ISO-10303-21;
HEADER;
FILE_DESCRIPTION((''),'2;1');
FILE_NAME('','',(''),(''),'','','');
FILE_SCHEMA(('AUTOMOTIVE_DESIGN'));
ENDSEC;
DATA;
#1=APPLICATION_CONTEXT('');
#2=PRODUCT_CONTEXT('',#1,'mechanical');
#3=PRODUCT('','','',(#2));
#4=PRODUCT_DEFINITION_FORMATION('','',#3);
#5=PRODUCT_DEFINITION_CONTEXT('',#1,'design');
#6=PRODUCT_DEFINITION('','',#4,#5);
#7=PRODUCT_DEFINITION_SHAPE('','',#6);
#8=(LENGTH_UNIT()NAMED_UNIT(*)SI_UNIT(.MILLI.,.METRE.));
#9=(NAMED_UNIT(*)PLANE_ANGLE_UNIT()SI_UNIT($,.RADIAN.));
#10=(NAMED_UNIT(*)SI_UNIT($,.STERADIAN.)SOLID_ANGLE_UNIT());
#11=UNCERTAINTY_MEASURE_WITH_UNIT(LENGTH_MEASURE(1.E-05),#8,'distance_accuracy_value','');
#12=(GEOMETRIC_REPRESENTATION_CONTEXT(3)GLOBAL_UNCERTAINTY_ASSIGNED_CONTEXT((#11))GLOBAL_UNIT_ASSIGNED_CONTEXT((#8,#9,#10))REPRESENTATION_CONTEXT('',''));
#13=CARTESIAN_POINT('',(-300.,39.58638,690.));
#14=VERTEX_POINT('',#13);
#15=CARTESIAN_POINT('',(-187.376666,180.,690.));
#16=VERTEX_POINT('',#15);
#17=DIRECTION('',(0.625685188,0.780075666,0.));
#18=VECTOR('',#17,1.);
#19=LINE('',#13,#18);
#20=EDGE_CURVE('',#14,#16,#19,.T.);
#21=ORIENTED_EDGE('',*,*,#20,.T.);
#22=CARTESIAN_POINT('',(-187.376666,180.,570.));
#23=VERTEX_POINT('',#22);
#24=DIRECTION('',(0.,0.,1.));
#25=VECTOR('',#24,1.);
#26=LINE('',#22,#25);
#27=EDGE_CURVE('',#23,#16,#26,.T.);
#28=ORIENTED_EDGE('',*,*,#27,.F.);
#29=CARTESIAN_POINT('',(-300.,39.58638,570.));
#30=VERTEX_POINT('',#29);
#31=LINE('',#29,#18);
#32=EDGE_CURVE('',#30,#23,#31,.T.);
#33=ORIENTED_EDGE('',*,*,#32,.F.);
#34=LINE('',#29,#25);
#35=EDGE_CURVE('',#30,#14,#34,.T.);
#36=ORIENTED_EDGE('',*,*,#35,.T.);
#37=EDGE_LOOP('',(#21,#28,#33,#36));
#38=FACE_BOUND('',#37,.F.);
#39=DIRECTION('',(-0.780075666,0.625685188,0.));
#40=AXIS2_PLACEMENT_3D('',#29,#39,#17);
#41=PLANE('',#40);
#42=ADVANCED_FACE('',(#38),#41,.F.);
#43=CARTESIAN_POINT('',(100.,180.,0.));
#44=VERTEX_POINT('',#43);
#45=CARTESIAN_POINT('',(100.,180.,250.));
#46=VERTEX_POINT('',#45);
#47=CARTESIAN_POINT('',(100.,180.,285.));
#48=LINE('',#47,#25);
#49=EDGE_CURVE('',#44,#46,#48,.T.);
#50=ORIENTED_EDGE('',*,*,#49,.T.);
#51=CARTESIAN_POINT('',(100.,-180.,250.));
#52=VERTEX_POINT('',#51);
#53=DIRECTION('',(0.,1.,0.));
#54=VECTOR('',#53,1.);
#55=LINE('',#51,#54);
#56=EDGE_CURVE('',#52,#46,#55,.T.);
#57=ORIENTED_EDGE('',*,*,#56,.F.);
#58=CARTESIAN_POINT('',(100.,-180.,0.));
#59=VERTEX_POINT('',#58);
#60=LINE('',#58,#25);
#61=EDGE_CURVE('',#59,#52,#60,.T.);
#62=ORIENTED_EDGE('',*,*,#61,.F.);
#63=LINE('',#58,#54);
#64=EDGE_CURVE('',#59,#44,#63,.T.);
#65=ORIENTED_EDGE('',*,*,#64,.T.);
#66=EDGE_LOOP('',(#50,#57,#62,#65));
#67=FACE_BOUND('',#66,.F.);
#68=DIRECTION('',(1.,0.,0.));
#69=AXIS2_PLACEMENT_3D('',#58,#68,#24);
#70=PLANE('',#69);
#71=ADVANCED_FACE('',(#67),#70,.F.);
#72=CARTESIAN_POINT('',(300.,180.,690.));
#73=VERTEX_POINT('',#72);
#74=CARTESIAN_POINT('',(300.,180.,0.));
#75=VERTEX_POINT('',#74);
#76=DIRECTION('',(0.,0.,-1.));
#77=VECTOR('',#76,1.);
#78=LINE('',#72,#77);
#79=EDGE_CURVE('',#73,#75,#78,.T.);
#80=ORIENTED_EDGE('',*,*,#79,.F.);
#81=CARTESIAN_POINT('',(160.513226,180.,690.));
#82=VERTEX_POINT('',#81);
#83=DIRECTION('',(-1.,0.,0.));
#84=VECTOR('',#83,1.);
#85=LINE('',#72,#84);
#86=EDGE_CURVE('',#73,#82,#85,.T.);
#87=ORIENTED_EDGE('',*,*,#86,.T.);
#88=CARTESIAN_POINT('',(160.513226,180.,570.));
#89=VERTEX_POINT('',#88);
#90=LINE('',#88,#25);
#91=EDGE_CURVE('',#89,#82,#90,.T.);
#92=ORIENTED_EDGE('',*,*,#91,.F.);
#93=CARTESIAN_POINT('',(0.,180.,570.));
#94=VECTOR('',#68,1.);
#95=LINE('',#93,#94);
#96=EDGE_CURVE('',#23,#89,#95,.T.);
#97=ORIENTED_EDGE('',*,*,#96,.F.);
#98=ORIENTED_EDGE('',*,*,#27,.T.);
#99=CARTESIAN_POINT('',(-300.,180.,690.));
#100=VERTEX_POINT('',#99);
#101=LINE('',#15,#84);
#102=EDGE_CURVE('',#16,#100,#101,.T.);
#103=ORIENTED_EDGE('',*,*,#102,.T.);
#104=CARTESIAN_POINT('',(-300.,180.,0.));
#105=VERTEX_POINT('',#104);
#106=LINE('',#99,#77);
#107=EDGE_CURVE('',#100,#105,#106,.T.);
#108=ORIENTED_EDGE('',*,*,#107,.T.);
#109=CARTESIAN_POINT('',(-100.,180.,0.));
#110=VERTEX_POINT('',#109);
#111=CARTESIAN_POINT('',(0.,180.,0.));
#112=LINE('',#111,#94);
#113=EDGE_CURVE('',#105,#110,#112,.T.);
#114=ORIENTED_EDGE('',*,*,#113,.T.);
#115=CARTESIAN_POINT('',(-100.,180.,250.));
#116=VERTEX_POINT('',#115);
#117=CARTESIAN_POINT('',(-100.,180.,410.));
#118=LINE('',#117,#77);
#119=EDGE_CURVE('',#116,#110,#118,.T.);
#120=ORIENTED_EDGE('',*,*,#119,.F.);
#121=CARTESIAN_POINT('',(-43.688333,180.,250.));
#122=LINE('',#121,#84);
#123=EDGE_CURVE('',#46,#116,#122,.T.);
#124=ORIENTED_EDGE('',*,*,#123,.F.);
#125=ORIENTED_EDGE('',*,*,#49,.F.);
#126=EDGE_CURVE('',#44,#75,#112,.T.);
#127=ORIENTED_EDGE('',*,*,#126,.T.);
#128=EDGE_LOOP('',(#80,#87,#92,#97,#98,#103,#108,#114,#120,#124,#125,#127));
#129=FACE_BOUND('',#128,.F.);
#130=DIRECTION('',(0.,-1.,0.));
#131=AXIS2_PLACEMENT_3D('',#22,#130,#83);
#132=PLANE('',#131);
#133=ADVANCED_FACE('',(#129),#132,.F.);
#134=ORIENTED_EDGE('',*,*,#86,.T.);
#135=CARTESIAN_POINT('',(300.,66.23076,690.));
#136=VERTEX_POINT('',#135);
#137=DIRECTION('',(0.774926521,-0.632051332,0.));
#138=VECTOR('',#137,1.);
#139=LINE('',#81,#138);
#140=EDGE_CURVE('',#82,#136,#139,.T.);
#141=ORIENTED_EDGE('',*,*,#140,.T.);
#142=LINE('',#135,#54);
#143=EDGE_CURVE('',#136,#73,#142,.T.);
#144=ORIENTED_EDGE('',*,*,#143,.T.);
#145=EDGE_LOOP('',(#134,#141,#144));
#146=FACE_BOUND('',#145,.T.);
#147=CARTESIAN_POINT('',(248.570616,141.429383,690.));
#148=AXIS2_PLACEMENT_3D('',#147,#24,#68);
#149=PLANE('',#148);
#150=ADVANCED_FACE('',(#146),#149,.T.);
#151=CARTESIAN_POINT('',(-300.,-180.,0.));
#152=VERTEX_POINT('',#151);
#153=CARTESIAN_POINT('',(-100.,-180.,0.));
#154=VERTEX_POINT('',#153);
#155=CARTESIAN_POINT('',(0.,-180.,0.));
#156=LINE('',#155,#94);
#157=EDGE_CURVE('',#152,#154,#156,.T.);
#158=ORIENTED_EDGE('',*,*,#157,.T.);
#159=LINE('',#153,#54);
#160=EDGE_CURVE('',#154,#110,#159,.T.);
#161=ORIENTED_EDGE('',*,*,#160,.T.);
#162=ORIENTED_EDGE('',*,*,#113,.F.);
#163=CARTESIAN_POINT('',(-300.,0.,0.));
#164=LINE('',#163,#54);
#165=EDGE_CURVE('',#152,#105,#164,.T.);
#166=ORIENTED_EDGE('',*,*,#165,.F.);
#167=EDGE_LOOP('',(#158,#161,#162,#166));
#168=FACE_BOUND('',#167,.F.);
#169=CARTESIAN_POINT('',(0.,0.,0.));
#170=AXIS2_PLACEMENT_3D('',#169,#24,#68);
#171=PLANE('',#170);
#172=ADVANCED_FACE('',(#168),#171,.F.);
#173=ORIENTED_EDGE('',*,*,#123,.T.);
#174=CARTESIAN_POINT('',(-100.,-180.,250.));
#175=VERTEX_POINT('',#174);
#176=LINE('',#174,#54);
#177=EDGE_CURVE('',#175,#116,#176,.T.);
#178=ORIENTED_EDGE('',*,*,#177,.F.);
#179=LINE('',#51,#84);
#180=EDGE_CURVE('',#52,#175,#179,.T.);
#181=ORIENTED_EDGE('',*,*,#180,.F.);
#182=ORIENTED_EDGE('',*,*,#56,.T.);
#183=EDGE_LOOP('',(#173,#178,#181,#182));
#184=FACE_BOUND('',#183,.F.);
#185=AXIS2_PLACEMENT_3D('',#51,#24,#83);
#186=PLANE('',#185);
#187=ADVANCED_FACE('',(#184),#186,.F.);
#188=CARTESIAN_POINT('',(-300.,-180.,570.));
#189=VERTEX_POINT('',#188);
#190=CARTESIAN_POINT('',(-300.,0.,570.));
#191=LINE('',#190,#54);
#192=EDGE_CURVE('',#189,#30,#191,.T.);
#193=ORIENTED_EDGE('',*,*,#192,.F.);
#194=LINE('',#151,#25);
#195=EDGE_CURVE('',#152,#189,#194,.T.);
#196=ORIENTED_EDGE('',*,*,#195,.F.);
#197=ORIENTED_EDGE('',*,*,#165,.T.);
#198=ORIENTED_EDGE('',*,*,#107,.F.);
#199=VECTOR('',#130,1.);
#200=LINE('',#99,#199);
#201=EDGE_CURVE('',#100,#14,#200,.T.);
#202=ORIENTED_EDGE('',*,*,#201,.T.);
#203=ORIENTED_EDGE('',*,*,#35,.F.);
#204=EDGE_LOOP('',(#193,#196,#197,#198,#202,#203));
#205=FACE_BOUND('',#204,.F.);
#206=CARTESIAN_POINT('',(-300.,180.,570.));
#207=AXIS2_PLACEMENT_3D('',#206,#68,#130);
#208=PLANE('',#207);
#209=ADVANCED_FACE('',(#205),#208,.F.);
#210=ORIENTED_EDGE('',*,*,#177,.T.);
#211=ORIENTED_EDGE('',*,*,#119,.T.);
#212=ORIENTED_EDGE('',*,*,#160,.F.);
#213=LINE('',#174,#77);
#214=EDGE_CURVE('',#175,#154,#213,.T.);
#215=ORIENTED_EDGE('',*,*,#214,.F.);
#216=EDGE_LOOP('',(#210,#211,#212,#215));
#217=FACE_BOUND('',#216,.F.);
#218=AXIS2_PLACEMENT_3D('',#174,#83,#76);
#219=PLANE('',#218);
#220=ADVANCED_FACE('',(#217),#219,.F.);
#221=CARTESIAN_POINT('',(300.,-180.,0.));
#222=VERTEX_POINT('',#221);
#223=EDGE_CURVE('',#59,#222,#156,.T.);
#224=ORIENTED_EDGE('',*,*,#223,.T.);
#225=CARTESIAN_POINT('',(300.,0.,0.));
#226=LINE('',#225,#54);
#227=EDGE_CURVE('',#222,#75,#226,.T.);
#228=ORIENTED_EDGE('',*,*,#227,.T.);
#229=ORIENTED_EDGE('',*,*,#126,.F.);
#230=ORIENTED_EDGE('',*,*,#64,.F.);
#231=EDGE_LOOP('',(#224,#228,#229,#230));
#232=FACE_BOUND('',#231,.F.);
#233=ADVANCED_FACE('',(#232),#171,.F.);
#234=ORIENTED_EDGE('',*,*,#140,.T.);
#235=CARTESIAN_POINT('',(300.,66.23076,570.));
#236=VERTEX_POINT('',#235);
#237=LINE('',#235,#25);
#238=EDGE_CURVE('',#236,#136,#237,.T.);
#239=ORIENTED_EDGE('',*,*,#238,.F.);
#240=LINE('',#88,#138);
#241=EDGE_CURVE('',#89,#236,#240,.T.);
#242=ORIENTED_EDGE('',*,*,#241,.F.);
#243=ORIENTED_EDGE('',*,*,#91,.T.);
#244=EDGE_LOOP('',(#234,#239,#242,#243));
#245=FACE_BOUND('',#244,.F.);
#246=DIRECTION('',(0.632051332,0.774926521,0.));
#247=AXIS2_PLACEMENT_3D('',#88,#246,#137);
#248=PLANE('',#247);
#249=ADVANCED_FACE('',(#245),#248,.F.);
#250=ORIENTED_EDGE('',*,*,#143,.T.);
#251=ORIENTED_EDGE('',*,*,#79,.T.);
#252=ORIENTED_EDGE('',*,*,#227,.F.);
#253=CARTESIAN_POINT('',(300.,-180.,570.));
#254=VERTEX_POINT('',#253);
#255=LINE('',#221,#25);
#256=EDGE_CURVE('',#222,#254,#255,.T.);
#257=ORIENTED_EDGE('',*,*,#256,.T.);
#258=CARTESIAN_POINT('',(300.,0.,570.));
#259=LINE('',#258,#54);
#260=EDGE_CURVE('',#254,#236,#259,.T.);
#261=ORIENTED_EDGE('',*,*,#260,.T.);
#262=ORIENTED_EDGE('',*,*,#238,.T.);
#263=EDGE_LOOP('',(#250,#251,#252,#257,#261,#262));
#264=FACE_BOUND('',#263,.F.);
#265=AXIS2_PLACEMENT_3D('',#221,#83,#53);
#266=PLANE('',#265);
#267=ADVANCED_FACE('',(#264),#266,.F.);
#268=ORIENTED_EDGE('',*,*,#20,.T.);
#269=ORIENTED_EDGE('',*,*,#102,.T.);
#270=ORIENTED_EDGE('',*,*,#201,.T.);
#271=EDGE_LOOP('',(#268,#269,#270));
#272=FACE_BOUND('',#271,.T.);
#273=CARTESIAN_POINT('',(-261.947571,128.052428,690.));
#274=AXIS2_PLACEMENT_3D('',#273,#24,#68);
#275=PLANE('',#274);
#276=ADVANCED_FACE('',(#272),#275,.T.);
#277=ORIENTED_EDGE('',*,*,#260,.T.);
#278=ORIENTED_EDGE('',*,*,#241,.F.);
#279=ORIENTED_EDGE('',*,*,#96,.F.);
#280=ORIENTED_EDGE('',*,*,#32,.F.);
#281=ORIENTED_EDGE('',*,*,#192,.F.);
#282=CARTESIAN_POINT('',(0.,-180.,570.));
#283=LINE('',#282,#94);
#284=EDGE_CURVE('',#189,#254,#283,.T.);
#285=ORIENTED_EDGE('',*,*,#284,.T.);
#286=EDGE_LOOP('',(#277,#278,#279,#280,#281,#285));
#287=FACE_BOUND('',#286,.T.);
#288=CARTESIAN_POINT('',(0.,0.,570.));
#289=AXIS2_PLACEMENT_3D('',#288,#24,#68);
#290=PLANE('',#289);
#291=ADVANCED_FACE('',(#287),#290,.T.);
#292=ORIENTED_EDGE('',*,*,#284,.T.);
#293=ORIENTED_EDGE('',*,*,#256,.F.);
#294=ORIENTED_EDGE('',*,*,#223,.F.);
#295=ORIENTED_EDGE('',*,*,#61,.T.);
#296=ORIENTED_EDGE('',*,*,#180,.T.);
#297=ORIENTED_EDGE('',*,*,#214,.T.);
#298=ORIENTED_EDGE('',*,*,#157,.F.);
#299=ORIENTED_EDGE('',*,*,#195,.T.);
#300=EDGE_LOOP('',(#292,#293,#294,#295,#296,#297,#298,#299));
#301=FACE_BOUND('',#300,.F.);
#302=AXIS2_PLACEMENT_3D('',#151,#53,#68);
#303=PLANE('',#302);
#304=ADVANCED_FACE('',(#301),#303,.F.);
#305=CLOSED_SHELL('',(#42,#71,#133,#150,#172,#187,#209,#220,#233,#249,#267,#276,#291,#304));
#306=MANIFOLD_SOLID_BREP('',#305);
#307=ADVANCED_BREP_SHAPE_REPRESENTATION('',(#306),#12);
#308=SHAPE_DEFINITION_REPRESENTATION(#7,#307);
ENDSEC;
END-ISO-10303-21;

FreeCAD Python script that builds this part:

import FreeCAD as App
import Part
import Sketcher

V = App.Vector


def add_polygon(sketch, points):
    """Adds a closed chain of lines whose ends are joined by coincident constraints."""
    first, n = sketch.GeometryCount, len(points)
    for a, b in zip(points, points[1:] + points[:1]):
        sketch.addGeometry(Part.LineSegment(App.Vector(*a, 0), App.Vector(*b, 0)), False)
    for i in range(n):
        sketch.addConstraint(Sketcher.Constraint("Coincident", first + i, 2, first + (i + 1) % n, 1))

doc = App.newDocument("Part")
body = doc.addObject("PartDesign::Body", "Body")

sketch1 = body.newObject("Sketcher::SketchObject", "Sketch")
sketch1.AttachmentSupport = (doc.getObject("XY_Plane"), [""])
sketch1.MapMode = "FlatFace"
add_polygon(sketch1, [(-300, 180), (-300, -180), (300, -180), (300, 180)])
sketch1.addConstraint(Sketcher.Constraint("Vertical", 0))
sketch1.addConstraint(Sketcher.Constraint("Horizontal", 1))
sketch1.addConstraint(Sketcher.Constraint("Vertical", 2))
sketch1.addConstraint(Sketcher.Constraint("Horizontal", 3))
sketch1.addConstraint(Sketcher.Constraint("Symmetric", 0, 2, 2, 2, -1, 1))
sketch1.addConstraint(Sketcher.Constraint("DistanceX", 1, 1, 1, 2, 600.0))
sketch1.addConstraint(Sketcher.Constraint("DistanceY", 0, 2, 0, 1, 360.0))
pad1 = body.newObject("PartDesign::Pad", "Pad")
pad1.Profile = sketch1
pad1.Length = 570

sketch2 = body.newObject("Sketcher::SketchObject", "Sketch001")
sketch2.AttachmentSupport = (doc.getObject("XY_Plane"), [""])
sketch2.MapMode = "FlatFace"
sketch2.AttachmentOffset = App.Placement(V(0, 0, 570), App.Rotation())
add_polygon(sketch2, [(-300, 40), (-187, 180), (-300, 180)])
add_polygon(sketch2, [(300, 180), (161, 180), (300, 66)])
sketch2.addConstraint(Sketcher.Constraint("Horizontal", 1))
sketch2.addConstraint(Sketcher.Constraint("Vertical", 2))
sketch2.addConstraint(Sketcher.Constraint("Horizontal", 3))
sketch2.addConstraint(Sketcher.Constraint("Vertical", 5))
sketch2.addConstraint(Sketcher.Constraint("Symmetric", 1, 2, 5, 2, -2))
sketch2.addConstraint(Sketcher.Constraint("Equal", 0, 4))
sketch2.addConstraint(Sketcher.Constraint("Distance", 0, 180.0))
sketch2.addConstraint(Sketcher.Constraint("DistanceY", -1, 1, 0, 2, 180.0))
sketch2.addConstraint(Sketcher.Constraint("DistanceX", 1, 2, -1, 1, 300.0))
sketch2.addConstraint(Sketcher.Constraint("DistanceY", 2, 2, 2, 1, 140.41362))
sketch2.addConstraint(Sketcher.Constraint("DistanceY", 5, 1, 5, 2, 113.76924))
pad2 = body.newObject("PartDesign::Pad", "Pad001")
pad2.Profile = sketch2
pad2.Length = 120

sketch3 = body.newObject("Sketcher::SketchObject", "Sketch002")
sketch3.AttachmentSupport = (doc.getObject("XZ_Plane"), [""])
sketch3.MapMode = "FlatFace"
sketch3.AttachmentOffset = App.Placement(V(0, 0, 180), App.Rotation())
add_polygon(sketch3, [(100, 0), (100, 250), (-100, 250), (-100, 0)])
sketch3.addConstraint(Sketcher.Constraint("Vertical", 0))
sketch3.addConstraint(Sketcher.Constraint("Horizontal", 1))
sketch3.addConstraint(Sketcher.Constraint("Vertical", 2))
sketch3.addConstraint(Sketcher.Constraint("Horizontal", 3))
sketch3.addConstraint(Sketcher.Constraint("Symmetric", 2, 2, 3, 2, -1, 1))
sketch3.addConstraint(Sketcher.Constraint("DistanceX", 1, 2, 1, 1, 200.0))
sketch3.addConstraint(Sketcher.Constraint("DistanceY", 0, 1, 0, 2, 250.0))
pocket1 = body.newObject("PartDesign::Pocket", "Pocket")
pocket1.Profile = sketch3
pocket1.Type = "ThroughAll"

doc.recompute()
